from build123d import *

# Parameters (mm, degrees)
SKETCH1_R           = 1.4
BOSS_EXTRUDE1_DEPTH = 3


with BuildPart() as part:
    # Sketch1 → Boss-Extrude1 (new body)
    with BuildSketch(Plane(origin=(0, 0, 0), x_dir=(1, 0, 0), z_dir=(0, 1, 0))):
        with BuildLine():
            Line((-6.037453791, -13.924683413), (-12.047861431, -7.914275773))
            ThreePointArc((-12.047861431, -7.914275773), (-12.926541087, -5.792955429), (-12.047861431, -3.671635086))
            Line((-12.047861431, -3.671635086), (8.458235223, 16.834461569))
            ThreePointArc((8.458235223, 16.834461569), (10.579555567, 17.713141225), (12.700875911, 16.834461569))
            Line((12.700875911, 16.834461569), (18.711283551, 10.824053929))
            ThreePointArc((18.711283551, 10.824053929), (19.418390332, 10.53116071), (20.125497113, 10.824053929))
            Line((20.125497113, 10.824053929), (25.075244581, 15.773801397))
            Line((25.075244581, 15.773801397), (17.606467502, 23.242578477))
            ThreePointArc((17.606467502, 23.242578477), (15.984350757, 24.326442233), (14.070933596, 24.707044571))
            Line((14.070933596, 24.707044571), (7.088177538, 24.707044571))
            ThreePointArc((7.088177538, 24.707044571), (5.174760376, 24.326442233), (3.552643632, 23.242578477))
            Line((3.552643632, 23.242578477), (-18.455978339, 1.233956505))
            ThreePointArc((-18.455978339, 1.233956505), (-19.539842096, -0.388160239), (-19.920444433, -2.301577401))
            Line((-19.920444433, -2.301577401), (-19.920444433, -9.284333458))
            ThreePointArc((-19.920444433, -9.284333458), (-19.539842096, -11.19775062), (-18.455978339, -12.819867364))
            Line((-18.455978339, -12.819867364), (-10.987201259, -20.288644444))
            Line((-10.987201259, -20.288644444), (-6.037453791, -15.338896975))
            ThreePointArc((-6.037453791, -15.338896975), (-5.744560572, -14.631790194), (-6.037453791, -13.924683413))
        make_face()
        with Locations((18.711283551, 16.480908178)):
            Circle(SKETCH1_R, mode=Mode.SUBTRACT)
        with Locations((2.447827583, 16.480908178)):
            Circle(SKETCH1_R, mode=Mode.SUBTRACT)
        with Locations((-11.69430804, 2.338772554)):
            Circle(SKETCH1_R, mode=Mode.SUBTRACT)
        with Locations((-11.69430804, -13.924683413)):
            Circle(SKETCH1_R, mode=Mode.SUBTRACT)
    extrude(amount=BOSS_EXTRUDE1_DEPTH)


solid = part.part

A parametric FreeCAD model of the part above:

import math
import FreeCAD as App
import Part
import Sketcher
from FreeCAD import Vector

doc = App.newDocument("Part")
body = doc.addObject("PartDesign::Body", "Body")

sketch1 = doc.addObject("Sketcher::SketchObject", "Sketch")
body.addObject(sketch1)
sketch1.AttachmentSupport = (doc.XZ_Plane, [""])
sketch1.MapMode = "FlatFace"
sketch1.addGeometry([
    Part.LineSegment(Vector(-6.037454, 13.924683, 0), Vector(-12.047861, 7.914276, 0)),
    Part.ArcOfCircle(Part.Circle(Vector(-9.926541, 5.792955, 0), Vector(0, 0, 1), 3), math.radians(135), math.radians(225)),
    Part.LineSegment(Vector(-12.047861, 3.671635, 0), Vector(8.458235, -16.834462, 0)),
    Part.ArcOfCircle(Part.Circle(Vector(10.579556, -14.713141, 0), Vector(0, 0, 1), 3), math.radians(-135), math.radians(-45)),
    Part.LineSegment(Vector(12.700876, -16.834462, 0), Vector(18.711284, -10.824054, 0)),
    Part.ArcOfCircle(Part.Circle(Vector(19.41839, -11.531161, 0), Vector(0, 0, 1), 1), math.radians(45), math.radians(135)),
    Part.LineSegment(Vector(20.125497, -10.824054, 0), Vector(25.075245, -15.773801, 0)),
    Part.LineSegment(Vector(25.075245, -15.773801, 0), Vector(17.606468, -23.242578, 0)),
    Part.ArcOfCircle(Part.Circle(Vector(14.070934, -19.707045, 0), Vector(0, 0, 1), 5), math.radians(-90), math.radians(-45)),
    Part.LineSegment(Vector(14.070934, -24.707045, 0), Vector(7.088178, -24.707045, 0)),
    Part.ArcOfCircle(Part.Circle(Vector(7.088178, -19.707045, 0), Vector(0, 0, 1), 5), math.radians(-135), math.radians(-90)),
    Part.LineSegment(Vector(3.552644, -23.242578, 0), Vector(-18.455978, -1.233957, 0)),
    Part.ArcOfCircle(Part.Circle(Vector(-14.920444, 2.301577, 0), Vector(0, 0, 1), 5), math.radians(180), math.radians(225)),
    Part.LineSegment(Vector(-19.920444, 2.301577, 0), Vector(-19.920444, 9.284333, 0)),
    Part.ArcOfCircle(Part.Circle(Vector(-14.920444, 9.284333, 0), Vector(0, 0, 1), 5), math.radians(135), math.radians(180)),
    Part.LineSegment(Vector(-18.455978, 12.819867, 0), Vector(-10.987201, 20.288644, 0)),
    Part.LineSegment(Vector(-10.987201, 20.288644, 0), Vector(-6.037454, 15.338897, 0)),
    Part.ArcOfCircle(Part.Circle(Vector(-6.744561, 14.63179, 0), Vector(0, 0, 1), 1), math.radians(-45), math.radians(45)),
    Part.Circle(Vector(-11.694308, 13.924683, 0), Vector(0, 0, 1), 1.4),
    Part.Circle(Vector(-11.694308, -2.338773, 0), Vector(0, 0, 1), 1.4),
    Part.Circle(Vector(2.447828, -16.480908, 0), Vector(0, 0, 1), 1.4),
    Part.Circle(Vector(18.711284, -16.480908, 0), Vector(0, 0, 1), 1.4),
], False)
sketch1.addConstraint([
    Sketcher.Constraint("Tangent", 0, 2, 1, 1),
    Sketcher.Constraint("Tangent", 1, 2, 2, 1),
    Sketcher.Constraint("Tangent", 2, 2, 3, 1),
    Sketcher.Constraint("Tangent", 3, 2, 4, 1),
    Sketcher.Constraint("Tangent", 4, 2, 5, 2),
    Sketcher.Constraint("Tangent", 5, 1, 6, 1),
    Sketcher.Constraint("Coincident", 6, 2, 7, 1),
    Sketcher.Constraint("Tangent", 7, 2, 8, 2),
    Sketcher.Constraint("Tangent", 8, 1, 9, 1),
    Sketcher.Constraint("Tangent", 9, 2, 10, 2),
    Sketcher.Constraint("Tangent", 10, 1, 11, 1),
    Sketcher.Constraint("Tangent", 11, 2, 12, 2),
    Sketcher.Constraint("Tangent", 12, 1, 13, 1),
    Sketcher.Constraint("Tangent", 13, 2, 14, 2),
    Sketcher.Constraint("Tangent", 14, 1, 15, 1),
    Sketcher.Constraint("Coincident", 15, 2, 16, 1),
    Sketcher.Constraint("Tangent", 16, 2, 17, 2),
    Sketcher.Constraint("Tangent", 17, 1, 0, 1),
    Sketcher.Constraint("Horizontal", 9),
    Sketcher.Constraint("Vertical", 13),
    Sketcher.Constraint("Equal", 1, 3),
    Sketcher.Constraint("Equal", 8, 10),
    Sketcher.Constraint("Equal", 10, 12),
    Sketcher.Constraint("Equal", 12, 14),
    Sketcher.Constraint("Equal", 5, 17),
    Sketcher.Constraint("Equal", 18, 19),
    Sketcher.Constraint("Equal", 19, 20),
    Sketcher.Constraint("Equal", 20, 21),
    Sketcher.Constraint("Perpendicular", 0, 2),
    Sketcher.Constraint("Perpendicular", 2, 4),
    Sketcher.Constraint("Perpendicular", 4, 6),
    Sketcher.Constraint("Perpendicular", 6, 7),
    Sketcher.Constraint("Perpendicular", 7, 11),
    Sketcher.Constraint("Perpendicular", 11, 15),
    Sketcher.Constraint("Perpendicular", 15, 16),
    Sketcher.Constraint("Horizontal", 20, 3, 21, 3),
    Sketcher.Constraint("Horizontal", 2, 2, 3, 2),
    Sketcher.Constraint("Horizontal", 18, 3, 17, 1),
    Sketcher.Constraint("Vertical", 18, 3, 19, 3),
    Sketcher.Constraint("Vertical", 21, 3, 4, 2),
    Sketcher.Constraint("Equal", 9, 13),
    Sketcher.Constraint("Equal", 0, 4),
    Sketcher.Constraint("Equal", 6, 16),
    Sketcher.Constraint("Radius", 1, 3.0),
    Sketcher.Constraint("Radius", 5, 1.0),
    Sketcher.Constraint("Radius", 8, 5.0),
    Sketcher.Constraint("Diameter", 18, 2.8),
    Sketcher.Constraint("Distance", 2, 29.0),
    Sketcher.Constraint("Distance", 6, 7.0),
    Sketcher.Constraint("Distance", 0, 8.5),
    Sketcher.Constraint("DistanceY", 8, 3, 1, 3, 25.5),
    Sketcher.Constraint("DistanceY", 6, 2, -1, 1, 15.773801),
    Sketcher.Constraint("DistanceX", 15, 2, -1, 1, 10.987201),
    Sketcher.Constraint("DistanceY", 12, 3, 0, 2, 5.612698),
    Sketcher.Constraint("DistanceX", 18, 3, -1, 1, 11.694308),
    Sketcher.Constraint("DistanceY", 20, 3, -1, 1, 16.480908),
    Sketcher.Constraint("DistanceY", 19, 3, 12, 3, 4.64035),
    Sketcher.Constraint("DistanceX", 20, 3, 10, 3, 4.64035),
])
pad1 = doc.addObject("PartDesign::Pad", "Pad")
body.addObject(pad1)
pad1.Profile = sketch1
pad1.Length = 3
pad1.Reversed = True

doc.recompute()
